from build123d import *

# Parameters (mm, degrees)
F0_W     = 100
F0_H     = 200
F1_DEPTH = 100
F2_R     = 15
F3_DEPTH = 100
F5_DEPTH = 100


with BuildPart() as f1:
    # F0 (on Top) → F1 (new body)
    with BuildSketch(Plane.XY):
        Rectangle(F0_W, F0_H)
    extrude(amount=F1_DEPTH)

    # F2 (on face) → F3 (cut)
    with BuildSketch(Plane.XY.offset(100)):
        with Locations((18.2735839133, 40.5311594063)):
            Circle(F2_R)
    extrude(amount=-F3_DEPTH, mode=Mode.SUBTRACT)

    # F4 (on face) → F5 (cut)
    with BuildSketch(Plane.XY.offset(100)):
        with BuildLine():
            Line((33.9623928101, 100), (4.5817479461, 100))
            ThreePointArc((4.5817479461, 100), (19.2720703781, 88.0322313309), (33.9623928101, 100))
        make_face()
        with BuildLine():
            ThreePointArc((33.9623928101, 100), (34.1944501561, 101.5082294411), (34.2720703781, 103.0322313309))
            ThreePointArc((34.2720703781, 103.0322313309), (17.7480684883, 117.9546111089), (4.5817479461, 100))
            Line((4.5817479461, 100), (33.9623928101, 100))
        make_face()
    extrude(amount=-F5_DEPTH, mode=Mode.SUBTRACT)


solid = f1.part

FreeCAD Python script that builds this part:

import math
import FreeCAD as App
import Part
import Sketcher

V = App.Vector

doc = App.newDocument("Part")
body = doc.addObject("PartDesign::Body", "Body")

# Sketch on XY plane
sketch1 = body.newObject("Sketcher::SketchObject", "Sketch")
sketch1.AttachmentSupport = (doc.getObject("XY_Plane"), [""])
sketch1.MapMode = "FlatFace"
sketch1.addGeometry([
    Part.LineSegment(V(-50, 100, 0), V(-50, -100, 0)),
    Part.LineSegment(V(-50, -100, 0), V(50, -100, 0)),
    Part.LineSegment(V(50, -100, 0), V(50, 100, 0)),
    Part.LineSegment(V(50, 100, 0), V(-50, 100, 0)),
], False)
sketch1.addConstraint([
    Sketcher.Constraint("Coincident", 0, 2, 1, 1),
    Sketcher.Constraint("Coincident", 1, 2, 2, 1),
    Sketcher.Constraint("Coincident", 2, 2, 3, 1),
    Sketcher.Constraint("Coincident", 3, 2, 0, 1),
    Sketcher.Constraint("Vertical", 0),
    Sketcher.Constraint("Horizontal", 1),
    Sketcher.Constraint("Vertical", 2),
    Sketcher.Constraint("Horizontal", 3),
    Sketcher.Constraint("Symmetric", 0, 2, 2, 2, -1, 1),
    Sketcher.Constraint("DistanceX", 1, 1, 1, 2, 100.0),
    Sketcher.Constraint("DistanceY", 0, 2, 0, 1, 200.0),
])
pad1 = body.newObject("PartDesign::Pad", "Pad")
pad1.Profile = sketch1
pad1.Length = 100

# Sketch on XY plane
sketch2 = body.newObject("Sketcher::SketchObject", "Sketch001")
sketch2.AttachmentSupport = (doc.getObject("XY_Plane"), [""])
sketch2.MapMode = "FlatFace"
sketch2.AttachmentOffset = App.Placement(V(0, 0, 100), App.Rotation())
sketch2.addGeometry(Part.Circle(V(18.273584, 40.531159, 0), V(0, 0, 1), 15), False)
sketch2.addConstraint([
    Sketcher.Constraint("Diameter", 0, 30.0),
    Sketcher.Constraint("DistanceY", -1, 1, 0, 3, 40.531159),
    Sketcher.Constraint("DistanceX", -1, 1, 0, 3, 18.273584),
])
pocket1 = body.newObject("PartDesign::Pocket", "Pocket")
pocket1.Profile = sketch2
pocket1.Length = 100

# Sketch on XY plane
sketch3 = body.newObject("Sketcher::SketchObject", "Sketch002")
sketch3.AttachmentSupport = (doc.getObject("XY_Plane"), [""])
sketch3.MapMode = "FlatFace"
sketch3.AttachmentOffset = App.Placement(V(0, 0, 100), App.Rotation())
sketch3.addGeometry([
    Part.ArcOfCircle(Part.Circle(V(19.27207, 103.032231, 0), V(0, 0, 1), 15), math.radians(-168.337359), math.radians(-11.662641)),
    Part.ArcOfCircle(Part.Circle(V(19.27207, 103.032231, 0), V(0, 0, 1), 15), math.radians(-11.662641), math.radians(0)),
    Part.ArcOfCircle(Part.Circle(V(19.27207, 103.032231, 0), V(0, 0, 1), 15), math.radians(0), math.radians(191.662641)),
], False)
sketch3.addConstraint([
    Sketcher.Constraint("Tangent", 0, 2, 1, 1),
    Sketcher.Constraint("Tangent", 1, 2, 2, 1),
    Sketcher.Constraint("Tangent", 2, 2, 0, 1),
    Sketcher.Constraint("Horizontal", 2, 3, 1, 2),
    Sketcher.Constraint("Horizontal", 0, 2, 2, 2),
    Sketcher.Constraint("Radius", 0, 15.0),
    Sketcher.Constraint("DistanceY", -1, 1, 0, 2, 100.0),
    Sketcher.Constraint("DistanceX", -1, 1, 0, 3, 19.27207),
    Sketcher.Constraint("DistanceY", -1, 1, 0, 3, 103.032231),
])
pocket2 = body.newObject("PartDesign::Pocket", "Pocket001")
pocket2.Profile = sketch3
pocket2.Length = 100

doc.recompute()
